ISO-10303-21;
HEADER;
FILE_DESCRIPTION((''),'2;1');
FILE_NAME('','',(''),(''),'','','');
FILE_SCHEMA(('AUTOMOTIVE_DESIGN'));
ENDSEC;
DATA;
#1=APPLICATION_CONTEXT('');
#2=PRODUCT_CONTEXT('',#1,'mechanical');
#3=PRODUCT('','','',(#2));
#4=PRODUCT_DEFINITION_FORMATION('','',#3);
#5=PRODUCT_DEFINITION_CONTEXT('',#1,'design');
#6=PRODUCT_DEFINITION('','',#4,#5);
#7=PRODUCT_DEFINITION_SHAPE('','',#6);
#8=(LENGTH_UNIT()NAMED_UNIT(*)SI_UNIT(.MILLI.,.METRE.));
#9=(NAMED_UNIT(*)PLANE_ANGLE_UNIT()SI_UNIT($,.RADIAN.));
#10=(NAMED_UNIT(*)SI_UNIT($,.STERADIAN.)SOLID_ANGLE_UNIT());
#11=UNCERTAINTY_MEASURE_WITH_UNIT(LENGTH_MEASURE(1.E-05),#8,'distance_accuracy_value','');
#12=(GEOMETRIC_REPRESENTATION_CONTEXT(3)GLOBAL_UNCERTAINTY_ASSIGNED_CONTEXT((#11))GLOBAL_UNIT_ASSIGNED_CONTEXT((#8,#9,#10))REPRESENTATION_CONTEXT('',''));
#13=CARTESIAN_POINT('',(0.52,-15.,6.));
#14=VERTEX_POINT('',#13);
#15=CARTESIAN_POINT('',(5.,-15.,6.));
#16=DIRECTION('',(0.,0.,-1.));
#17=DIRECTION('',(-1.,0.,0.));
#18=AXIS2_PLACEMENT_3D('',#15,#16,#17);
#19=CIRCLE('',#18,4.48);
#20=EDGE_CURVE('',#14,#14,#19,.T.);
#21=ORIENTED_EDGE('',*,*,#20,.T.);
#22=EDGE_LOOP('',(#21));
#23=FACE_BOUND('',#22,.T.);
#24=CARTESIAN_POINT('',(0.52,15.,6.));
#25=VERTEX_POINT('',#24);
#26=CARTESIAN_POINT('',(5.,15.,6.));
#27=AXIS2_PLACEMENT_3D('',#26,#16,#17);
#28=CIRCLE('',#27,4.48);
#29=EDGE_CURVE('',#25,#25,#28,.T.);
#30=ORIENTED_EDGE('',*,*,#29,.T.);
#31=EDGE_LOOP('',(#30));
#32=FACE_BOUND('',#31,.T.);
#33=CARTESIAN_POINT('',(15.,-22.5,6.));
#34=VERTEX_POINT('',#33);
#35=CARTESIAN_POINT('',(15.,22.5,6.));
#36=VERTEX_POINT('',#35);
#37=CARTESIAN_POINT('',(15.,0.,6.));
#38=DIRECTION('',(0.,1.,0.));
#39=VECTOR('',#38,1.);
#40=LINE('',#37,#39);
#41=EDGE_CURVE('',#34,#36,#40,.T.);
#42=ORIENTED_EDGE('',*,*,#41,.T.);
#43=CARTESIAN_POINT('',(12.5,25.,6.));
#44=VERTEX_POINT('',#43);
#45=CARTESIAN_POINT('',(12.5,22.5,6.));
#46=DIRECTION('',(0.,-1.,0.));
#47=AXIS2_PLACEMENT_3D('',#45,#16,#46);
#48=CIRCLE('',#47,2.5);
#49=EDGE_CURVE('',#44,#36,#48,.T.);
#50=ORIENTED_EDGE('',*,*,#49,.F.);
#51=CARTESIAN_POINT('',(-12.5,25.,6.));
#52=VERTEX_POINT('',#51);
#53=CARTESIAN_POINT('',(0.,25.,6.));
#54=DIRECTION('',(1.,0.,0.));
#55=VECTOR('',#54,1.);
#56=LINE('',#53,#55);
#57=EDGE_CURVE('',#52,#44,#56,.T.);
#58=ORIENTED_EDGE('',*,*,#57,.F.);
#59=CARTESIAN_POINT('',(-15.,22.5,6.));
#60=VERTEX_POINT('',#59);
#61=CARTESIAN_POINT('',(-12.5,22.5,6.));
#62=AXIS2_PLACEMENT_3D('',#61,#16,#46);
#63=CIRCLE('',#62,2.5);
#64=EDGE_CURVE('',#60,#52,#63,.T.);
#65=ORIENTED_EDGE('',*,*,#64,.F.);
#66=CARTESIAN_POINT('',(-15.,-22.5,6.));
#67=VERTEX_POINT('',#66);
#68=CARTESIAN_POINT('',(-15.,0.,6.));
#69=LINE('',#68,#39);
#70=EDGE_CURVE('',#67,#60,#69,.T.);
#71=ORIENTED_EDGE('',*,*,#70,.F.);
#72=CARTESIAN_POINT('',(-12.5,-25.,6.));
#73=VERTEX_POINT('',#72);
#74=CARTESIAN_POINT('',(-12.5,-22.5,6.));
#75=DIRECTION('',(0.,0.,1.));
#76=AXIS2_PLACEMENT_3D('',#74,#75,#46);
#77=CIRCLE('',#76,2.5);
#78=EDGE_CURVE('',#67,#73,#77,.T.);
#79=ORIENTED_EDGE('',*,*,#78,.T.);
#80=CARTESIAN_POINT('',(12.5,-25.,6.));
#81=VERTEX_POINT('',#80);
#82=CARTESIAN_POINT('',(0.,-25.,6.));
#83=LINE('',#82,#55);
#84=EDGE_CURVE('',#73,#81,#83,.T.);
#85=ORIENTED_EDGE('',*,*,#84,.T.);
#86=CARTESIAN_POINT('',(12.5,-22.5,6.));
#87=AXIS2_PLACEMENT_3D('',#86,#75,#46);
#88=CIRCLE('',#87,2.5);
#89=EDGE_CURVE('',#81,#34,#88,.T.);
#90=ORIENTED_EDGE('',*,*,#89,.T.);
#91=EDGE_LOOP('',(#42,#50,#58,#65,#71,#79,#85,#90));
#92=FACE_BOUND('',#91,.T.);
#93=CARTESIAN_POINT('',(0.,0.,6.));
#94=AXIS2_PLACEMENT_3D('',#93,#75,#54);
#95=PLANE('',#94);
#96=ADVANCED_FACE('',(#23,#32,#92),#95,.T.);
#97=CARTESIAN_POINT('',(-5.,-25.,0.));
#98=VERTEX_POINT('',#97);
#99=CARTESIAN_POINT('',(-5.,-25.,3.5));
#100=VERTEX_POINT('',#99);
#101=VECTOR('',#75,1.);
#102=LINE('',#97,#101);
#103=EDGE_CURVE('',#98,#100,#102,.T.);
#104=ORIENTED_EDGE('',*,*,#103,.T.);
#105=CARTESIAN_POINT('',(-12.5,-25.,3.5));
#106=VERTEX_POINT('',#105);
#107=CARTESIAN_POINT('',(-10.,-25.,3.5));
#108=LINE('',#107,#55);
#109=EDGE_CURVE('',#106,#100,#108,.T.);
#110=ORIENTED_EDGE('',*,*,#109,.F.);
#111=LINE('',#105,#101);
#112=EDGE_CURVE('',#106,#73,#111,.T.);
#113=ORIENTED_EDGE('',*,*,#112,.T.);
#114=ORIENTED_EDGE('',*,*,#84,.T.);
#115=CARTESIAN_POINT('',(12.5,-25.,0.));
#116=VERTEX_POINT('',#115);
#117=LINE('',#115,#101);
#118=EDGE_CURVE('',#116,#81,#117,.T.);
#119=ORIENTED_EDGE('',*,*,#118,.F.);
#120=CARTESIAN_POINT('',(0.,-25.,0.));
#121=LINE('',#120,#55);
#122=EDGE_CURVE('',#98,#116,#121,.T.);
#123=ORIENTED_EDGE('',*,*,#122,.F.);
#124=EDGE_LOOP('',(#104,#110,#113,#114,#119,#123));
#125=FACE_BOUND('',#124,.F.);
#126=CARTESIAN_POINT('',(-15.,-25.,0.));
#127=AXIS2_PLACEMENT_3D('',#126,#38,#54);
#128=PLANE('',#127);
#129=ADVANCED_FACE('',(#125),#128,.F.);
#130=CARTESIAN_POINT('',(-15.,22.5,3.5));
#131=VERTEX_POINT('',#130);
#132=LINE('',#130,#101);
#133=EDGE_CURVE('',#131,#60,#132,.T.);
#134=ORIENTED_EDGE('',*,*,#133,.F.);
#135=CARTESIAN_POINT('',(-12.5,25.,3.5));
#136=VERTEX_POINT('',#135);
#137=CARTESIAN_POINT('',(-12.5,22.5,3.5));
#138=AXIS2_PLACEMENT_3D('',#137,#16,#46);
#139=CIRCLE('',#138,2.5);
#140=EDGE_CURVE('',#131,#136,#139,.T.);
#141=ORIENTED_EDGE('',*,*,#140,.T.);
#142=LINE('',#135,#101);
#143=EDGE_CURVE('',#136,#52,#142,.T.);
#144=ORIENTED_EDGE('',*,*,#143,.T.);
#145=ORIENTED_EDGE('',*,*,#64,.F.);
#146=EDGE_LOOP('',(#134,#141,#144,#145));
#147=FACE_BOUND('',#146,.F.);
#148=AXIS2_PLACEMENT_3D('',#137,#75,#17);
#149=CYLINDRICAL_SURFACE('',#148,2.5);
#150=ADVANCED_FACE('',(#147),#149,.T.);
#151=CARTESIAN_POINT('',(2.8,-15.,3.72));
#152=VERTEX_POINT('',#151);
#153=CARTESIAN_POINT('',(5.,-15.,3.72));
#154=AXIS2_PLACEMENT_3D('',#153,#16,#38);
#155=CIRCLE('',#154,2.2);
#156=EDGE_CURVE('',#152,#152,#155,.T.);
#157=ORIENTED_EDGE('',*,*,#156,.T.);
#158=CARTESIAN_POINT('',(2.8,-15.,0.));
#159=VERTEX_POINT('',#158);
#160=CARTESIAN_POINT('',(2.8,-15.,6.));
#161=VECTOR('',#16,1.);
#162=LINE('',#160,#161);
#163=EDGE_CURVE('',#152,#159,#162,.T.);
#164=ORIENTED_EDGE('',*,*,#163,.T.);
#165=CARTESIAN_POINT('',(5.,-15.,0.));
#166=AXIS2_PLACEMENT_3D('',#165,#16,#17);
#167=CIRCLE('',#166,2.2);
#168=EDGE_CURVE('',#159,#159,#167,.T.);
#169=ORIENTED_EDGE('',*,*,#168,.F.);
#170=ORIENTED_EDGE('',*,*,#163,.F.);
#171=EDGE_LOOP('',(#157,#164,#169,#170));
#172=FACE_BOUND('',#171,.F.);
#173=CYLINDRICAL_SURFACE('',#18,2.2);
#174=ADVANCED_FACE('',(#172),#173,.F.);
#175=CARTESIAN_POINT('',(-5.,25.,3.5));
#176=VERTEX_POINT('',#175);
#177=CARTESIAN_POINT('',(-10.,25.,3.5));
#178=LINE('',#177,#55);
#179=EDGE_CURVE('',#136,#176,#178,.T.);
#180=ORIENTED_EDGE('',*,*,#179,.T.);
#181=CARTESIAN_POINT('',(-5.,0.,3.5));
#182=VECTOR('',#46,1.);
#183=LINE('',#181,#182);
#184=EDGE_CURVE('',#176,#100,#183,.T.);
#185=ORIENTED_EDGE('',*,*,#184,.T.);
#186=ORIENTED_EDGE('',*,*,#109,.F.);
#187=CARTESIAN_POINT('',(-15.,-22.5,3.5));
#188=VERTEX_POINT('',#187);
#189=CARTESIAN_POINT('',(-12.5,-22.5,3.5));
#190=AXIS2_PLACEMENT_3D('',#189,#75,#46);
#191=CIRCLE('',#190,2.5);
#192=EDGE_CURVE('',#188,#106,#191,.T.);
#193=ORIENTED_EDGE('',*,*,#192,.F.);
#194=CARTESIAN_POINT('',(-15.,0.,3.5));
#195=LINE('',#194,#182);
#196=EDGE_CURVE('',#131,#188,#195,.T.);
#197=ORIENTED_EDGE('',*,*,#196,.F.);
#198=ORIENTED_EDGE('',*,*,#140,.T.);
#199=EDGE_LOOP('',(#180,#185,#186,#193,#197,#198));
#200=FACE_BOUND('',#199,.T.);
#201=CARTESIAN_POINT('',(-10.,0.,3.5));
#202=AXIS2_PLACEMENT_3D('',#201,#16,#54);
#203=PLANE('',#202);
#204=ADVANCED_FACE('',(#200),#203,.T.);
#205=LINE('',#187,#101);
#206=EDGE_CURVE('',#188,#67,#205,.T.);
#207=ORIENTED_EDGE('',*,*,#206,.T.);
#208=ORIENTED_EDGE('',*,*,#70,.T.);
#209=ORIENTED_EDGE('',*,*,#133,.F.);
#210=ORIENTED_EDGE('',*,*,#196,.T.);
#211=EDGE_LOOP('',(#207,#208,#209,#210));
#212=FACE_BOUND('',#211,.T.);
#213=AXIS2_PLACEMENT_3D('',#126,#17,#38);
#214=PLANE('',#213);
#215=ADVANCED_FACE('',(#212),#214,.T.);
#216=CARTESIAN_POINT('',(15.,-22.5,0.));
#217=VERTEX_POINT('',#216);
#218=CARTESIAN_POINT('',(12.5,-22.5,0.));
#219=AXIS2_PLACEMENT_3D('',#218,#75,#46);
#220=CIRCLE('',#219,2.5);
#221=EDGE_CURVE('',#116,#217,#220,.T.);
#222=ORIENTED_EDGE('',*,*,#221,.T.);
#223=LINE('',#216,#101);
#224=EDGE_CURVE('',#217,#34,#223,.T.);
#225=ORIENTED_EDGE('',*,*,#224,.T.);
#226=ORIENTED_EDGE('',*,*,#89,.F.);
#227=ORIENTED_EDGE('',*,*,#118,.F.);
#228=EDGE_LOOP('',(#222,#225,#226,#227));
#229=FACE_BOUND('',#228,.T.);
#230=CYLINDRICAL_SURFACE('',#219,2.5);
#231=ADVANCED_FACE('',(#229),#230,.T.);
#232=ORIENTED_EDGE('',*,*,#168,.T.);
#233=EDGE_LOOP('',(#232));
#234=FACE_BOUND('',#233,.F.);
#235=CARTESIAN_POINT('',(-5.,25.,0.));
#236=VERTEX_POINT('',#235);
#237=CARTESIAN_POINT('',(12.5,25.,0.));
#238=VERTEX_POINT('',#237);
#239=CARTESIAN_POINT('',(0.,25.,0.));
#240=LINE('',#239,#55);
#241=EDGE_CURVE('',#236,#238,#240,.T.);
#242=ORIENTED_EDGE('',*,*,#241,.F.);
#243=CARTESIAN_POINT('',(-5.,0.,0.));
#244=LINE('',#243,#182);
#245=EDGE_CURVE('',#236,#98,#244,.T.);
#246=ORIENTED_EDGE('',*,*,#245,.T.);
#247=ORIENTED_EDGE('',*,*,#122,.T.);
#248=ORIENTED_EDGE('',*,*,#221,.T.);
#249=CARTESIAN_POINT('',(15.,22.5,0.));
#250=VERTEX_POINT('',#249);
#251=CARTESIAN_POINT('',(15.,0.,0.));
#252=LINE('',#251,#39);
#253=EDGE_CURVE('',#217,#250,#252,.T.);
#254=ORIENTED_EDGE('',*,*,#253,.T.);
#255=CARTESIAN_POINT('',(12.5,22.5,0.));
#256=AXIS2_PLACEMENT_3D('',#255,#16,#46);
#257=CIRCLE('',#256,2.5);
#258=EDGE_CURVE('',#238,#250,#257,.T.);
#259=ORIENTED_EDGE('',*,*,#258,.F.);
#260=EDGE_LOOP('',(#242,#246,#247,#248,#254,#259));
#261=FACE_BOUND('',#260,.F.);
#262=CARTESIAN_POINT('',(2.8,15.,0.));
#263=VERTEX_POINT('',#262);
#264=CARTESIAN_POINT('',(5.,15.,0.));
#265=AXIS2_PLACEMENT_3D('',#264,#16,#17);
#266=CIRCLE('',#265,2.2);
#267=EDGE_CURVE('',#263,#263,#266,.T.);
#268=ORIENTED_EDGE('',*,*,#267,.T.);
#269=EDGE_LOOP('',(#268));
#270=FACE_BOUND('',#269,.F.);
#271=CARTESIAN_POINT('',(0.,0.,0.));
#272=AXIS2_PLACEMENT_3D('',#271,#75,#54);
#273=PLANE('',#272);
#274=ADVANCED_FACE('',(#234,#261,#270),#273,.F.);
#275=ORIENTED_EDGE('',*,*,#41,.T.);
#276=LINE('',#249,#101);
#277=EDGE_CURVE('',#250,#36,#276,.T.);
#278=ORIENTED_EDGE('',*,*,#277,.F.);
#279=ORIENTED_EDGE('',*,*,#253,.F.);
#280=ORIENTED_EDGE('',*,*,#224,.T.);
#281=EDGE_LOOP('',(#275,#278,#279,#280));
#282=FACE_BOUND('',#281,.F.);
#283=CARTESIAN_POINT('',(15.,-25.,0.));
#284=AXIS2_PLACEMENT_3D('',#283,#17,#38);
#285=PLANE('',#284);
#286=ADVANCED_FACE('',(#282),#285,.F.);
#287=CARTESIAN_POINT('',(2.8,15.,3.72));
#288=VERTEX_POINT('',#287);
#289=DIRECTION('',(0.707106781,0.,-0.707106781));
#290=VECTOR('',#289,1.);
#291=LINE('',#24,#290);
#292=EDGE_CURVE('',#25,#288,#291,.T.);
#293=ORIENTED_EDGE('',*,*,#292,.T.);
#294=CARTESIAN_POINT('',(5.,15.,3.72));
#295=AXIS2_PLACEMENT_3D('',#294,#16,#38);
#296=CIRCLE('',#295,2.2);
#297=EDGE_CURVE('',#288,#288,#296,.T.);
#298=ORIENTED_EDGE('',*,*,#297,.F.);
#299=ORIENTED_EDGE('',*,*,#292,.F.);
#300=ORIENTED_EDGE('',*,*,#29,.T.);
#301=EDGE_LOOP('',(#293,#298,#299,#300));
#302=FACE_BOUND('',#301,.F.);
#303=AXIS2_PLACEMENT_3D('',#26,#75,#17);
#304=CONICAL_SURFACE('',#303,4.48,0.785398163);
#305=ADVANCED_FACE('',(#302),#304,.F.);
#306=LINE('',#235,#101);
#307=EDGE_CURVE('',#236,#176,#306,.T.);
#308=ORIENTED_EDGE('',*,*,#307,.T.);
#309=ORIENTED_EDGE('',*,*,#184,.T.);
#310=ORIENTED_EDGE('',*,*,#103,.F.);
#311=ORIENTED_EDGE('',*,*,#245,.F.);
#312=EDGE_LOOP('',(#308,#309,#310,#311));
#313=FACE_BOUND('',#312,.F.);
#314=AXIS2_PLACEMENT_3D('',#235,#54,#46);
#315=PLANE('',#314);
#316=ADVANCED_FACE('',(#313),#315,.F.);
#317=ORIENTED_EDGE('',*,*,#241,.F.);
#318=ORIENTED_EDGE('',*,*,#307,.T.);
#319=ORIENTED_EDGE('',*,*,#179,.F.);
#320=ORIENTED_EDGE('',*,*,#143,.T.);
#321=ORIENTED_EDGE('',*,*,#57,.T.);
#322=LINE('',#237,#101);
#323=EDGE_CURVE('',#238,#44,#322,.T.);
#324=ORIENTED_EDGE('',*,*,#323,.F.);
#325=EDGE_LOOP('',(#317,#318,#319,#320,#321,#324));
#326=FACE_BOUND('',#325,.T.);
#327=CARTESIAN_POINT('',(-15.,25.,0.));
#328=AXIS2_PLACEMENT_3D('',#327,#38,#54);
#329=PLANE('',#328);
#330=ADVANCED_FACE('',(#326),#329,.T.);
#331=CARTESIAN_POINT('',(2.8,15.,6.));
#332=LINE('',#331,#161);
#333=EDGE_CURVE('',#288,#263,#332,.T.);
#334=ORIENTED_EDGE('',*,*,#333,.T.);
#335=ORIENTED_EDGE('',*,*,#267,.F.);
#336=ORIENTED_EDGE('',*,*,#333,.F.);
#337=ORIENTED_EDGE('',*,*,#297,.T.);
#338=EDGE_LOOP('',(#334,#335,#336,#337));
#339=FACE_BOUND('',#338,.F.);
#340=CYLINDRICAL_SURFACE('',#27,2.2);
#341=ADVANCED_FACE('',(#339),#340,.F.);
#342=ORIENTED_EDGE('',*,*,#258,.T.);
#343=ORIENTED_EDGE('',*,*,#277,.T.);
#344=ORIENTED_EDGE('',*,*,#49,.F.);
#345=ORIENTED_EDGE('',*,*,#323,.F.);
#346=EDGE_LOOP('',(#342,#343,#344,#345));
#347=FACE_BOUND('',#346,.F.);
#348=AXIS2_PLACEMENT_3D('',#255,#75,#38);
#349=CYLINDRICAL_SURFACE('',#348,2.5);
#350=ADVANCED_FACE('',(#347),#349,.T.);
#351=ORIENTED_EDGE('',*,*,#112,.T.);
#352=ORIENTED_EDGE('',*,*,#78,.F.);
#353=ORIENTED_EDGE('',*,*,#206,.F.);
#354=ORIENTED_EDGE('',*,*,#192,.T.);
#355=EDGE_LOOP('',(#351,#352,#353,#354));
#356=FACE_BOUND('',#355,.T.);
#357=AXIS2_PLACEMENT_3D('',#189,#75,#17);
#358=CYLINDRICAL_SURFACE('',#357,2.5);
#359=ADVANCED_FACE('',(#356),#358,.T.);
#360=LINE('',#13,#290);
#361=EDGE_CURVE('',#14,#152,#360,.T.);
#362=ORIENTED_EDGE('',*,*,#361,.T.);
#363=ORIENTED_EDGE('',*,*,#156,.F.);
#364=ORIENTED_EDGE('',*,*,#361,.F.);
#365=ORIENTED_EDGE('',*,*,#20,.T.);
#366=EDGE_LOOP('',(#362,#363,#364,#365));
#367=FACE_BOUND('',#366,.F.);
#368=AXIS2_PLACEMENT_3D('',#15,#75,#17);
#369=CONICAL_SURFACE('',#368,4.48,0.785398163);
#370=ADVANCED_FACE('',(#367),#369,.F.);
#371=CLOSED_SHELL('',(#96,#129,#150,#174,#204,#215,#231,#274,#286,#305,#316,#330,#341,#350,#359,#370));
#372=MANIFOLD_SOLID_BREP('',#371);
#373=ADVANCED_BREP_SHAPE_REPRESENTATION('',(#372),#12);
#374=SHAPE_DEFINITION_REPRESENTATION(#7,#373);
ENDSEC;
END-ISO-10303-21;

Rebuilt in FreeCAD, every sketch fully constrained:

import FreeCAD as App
import Part
import Sketcher
Q = App.Units.Quantity


def edges_at(feature, points):
    """Names of the edges that pass closest to the given points."""
    edges = feature.Shape.Edges
    near = lambda p: min(range(len(edges)), key=lambda i: edges[i].distToShape(Part.Vertex(*p))[0])
    return sorted({f"Edge{near(p) + 1}" for p in points})


def add_polygon(sketch, points):
    """Adds a closed chain of lines whose ends are joined by coincident constraints."""
    first, n = sketch.GeometryCount, len(points)
    for a, b in zip(points, points[1:] + points[:1]):
        sketch.addGeometry(Part.LineSegment(App.Vector(*a, 0), App.Vector(*b, 0)), False)
    for i in range(n):
        sketch.addConstraint(Sketcher.Constraint("Coincident", first + i, 2, first + (i + 1) % n, 1))

doc = App.newDocument("Part")
body = doc.addObject("PartDesign::Body", "Body")

# Sketch on XY plane
sketch1 = body.newObject("Sketcher::SketchObject", "Sketch")
sketch1.AttachmentSupport = (doc.getObject("XY_Plane"), [""])
sketch1.MapMode = "FlatFace"
add_polygon(sketch1, [(-15, 25), (-15, -25), (15, -25), (15, 25)])  # lines 0-3
sketch1.addConstraint([
    Sketcher.Constraint("Vertical", 0),
    Sketcher.Constraint("Horizontal", 1),
    Sketcher.Constraint("Vertical", 2),
    Sketcher.Constraint("Horizontal", 3),
    Sketcher.Constraint("Symmetric", 0, 2, 2, 2, -1, 1),
    Sketcher.Constraint("DistanceX", 1, 1, 1, 2, Q("30 mm")),
    Sketcher.Constraint("DistanceY", 0, 2, 0, 1, Q("50 mm")),
])
pad1 = body.newObject("PartDesign::Pad", "Pad")
pad1.Profile = sketch1
pad1.Length = 6

# Sketch on XY plane
sketch2 = body.newObject("Sketcher::SketchObject", "Sketch001")
sketch2.AttachmentSupport = (doc.getObject("XY_Plane"), [""])
sketch2.MapMode = "FlatFace"
sketch2.AttachmentOffset = App.Placement(App.Vector(0, 0, 6), App.Rotation())
sketch2.addGeometry([
    Part.Circle(App.Vector(5, 15, 0), App.Vector(0, 0, 1), 2.2),
    Part.Circle(App.Vector(5, -15, 0), App.Vector(0, 0, 1), 2.2),
], False)
sketch2.addConstraint([
    Sketcher.Constraint("Equal", 0, 1),
    Sketcher.Constraint("Symmetric", 0, 3, 1, 3, -1),
    Sketcher.Constraint("Diameter", 0, Q("4.4 mm")),
    Sketcher.Constraint("DistanceX", -1, 1, 0, 3, Q("5 mm")),
    Sketcher.Constraint("DistanceY", -1, 1, 0, 3, Q("15 mm")),
])
doc.recompute()
hole = body.newObject("PartDesign::Hole", "Hole")
hole.Profile = sketch2
hole.ThreadType = "None"
hole.Diameter = 4.4
hole.DepthType = "ThroughAll"
hole.HoleCutType = "Countersink"
hole.HoleCutDiameter = 8.96
hole.HoleCutCountersinkAngle = 90

# Sketch on XY plane
sketch3 = body.newObject("Sketcher::SketchObject", "Sketch002")
sketch3.AttachmentSupport = (doc.getObject("XY_Plane"), [""])
sketch3.MapMode = "FlatFace"
add_polygon(sketch3, [(-15, -25), (-15, 25), (-5, 25), (-5, -25)])  # lines 0-3
sketch3.addConstraint([
    Sketcher.Constraint("Vertical", 0),
    Sketcher.Constraint("Horizontal", 1),
    Sketcher.Constraint("Vertical", 2),
    Sketcher.Constraint("Horizontal", 3),
    Sketcher.Constraint("DistanceX", 1, 1, 1, 2, Q("10 mm")),
    Sketcher.Constraint("DistanceY", 0, 1, 0, 2, Q("50 mm")),
    Sketcher.Constraint("DistanceX", 0, 2, -1, 1, Q("15 mm")),
    Sketcher.Constraint("DistanceY", -1, 1, 0, 2, Q("25 mm")),
])
pocket1 = body.newObject("PartDesign::Pocket", "Pocket")
pocket1.Profile = sketch3
pocket1.Length = 3.5
pocket1.Reversed = True
doc.recompute()

fillet = body.newObject("PartDesign::Fillet", "Fillet")
fillet.Base = (pocket1, edges_at(pocket1, [
    (-15, -25, 4.75),
    (15, -25, 3),
    (-15, 25, 4.75),
    (15, 25, 3),
]))
fillet.Radius = 2.5

doc.recompute()
